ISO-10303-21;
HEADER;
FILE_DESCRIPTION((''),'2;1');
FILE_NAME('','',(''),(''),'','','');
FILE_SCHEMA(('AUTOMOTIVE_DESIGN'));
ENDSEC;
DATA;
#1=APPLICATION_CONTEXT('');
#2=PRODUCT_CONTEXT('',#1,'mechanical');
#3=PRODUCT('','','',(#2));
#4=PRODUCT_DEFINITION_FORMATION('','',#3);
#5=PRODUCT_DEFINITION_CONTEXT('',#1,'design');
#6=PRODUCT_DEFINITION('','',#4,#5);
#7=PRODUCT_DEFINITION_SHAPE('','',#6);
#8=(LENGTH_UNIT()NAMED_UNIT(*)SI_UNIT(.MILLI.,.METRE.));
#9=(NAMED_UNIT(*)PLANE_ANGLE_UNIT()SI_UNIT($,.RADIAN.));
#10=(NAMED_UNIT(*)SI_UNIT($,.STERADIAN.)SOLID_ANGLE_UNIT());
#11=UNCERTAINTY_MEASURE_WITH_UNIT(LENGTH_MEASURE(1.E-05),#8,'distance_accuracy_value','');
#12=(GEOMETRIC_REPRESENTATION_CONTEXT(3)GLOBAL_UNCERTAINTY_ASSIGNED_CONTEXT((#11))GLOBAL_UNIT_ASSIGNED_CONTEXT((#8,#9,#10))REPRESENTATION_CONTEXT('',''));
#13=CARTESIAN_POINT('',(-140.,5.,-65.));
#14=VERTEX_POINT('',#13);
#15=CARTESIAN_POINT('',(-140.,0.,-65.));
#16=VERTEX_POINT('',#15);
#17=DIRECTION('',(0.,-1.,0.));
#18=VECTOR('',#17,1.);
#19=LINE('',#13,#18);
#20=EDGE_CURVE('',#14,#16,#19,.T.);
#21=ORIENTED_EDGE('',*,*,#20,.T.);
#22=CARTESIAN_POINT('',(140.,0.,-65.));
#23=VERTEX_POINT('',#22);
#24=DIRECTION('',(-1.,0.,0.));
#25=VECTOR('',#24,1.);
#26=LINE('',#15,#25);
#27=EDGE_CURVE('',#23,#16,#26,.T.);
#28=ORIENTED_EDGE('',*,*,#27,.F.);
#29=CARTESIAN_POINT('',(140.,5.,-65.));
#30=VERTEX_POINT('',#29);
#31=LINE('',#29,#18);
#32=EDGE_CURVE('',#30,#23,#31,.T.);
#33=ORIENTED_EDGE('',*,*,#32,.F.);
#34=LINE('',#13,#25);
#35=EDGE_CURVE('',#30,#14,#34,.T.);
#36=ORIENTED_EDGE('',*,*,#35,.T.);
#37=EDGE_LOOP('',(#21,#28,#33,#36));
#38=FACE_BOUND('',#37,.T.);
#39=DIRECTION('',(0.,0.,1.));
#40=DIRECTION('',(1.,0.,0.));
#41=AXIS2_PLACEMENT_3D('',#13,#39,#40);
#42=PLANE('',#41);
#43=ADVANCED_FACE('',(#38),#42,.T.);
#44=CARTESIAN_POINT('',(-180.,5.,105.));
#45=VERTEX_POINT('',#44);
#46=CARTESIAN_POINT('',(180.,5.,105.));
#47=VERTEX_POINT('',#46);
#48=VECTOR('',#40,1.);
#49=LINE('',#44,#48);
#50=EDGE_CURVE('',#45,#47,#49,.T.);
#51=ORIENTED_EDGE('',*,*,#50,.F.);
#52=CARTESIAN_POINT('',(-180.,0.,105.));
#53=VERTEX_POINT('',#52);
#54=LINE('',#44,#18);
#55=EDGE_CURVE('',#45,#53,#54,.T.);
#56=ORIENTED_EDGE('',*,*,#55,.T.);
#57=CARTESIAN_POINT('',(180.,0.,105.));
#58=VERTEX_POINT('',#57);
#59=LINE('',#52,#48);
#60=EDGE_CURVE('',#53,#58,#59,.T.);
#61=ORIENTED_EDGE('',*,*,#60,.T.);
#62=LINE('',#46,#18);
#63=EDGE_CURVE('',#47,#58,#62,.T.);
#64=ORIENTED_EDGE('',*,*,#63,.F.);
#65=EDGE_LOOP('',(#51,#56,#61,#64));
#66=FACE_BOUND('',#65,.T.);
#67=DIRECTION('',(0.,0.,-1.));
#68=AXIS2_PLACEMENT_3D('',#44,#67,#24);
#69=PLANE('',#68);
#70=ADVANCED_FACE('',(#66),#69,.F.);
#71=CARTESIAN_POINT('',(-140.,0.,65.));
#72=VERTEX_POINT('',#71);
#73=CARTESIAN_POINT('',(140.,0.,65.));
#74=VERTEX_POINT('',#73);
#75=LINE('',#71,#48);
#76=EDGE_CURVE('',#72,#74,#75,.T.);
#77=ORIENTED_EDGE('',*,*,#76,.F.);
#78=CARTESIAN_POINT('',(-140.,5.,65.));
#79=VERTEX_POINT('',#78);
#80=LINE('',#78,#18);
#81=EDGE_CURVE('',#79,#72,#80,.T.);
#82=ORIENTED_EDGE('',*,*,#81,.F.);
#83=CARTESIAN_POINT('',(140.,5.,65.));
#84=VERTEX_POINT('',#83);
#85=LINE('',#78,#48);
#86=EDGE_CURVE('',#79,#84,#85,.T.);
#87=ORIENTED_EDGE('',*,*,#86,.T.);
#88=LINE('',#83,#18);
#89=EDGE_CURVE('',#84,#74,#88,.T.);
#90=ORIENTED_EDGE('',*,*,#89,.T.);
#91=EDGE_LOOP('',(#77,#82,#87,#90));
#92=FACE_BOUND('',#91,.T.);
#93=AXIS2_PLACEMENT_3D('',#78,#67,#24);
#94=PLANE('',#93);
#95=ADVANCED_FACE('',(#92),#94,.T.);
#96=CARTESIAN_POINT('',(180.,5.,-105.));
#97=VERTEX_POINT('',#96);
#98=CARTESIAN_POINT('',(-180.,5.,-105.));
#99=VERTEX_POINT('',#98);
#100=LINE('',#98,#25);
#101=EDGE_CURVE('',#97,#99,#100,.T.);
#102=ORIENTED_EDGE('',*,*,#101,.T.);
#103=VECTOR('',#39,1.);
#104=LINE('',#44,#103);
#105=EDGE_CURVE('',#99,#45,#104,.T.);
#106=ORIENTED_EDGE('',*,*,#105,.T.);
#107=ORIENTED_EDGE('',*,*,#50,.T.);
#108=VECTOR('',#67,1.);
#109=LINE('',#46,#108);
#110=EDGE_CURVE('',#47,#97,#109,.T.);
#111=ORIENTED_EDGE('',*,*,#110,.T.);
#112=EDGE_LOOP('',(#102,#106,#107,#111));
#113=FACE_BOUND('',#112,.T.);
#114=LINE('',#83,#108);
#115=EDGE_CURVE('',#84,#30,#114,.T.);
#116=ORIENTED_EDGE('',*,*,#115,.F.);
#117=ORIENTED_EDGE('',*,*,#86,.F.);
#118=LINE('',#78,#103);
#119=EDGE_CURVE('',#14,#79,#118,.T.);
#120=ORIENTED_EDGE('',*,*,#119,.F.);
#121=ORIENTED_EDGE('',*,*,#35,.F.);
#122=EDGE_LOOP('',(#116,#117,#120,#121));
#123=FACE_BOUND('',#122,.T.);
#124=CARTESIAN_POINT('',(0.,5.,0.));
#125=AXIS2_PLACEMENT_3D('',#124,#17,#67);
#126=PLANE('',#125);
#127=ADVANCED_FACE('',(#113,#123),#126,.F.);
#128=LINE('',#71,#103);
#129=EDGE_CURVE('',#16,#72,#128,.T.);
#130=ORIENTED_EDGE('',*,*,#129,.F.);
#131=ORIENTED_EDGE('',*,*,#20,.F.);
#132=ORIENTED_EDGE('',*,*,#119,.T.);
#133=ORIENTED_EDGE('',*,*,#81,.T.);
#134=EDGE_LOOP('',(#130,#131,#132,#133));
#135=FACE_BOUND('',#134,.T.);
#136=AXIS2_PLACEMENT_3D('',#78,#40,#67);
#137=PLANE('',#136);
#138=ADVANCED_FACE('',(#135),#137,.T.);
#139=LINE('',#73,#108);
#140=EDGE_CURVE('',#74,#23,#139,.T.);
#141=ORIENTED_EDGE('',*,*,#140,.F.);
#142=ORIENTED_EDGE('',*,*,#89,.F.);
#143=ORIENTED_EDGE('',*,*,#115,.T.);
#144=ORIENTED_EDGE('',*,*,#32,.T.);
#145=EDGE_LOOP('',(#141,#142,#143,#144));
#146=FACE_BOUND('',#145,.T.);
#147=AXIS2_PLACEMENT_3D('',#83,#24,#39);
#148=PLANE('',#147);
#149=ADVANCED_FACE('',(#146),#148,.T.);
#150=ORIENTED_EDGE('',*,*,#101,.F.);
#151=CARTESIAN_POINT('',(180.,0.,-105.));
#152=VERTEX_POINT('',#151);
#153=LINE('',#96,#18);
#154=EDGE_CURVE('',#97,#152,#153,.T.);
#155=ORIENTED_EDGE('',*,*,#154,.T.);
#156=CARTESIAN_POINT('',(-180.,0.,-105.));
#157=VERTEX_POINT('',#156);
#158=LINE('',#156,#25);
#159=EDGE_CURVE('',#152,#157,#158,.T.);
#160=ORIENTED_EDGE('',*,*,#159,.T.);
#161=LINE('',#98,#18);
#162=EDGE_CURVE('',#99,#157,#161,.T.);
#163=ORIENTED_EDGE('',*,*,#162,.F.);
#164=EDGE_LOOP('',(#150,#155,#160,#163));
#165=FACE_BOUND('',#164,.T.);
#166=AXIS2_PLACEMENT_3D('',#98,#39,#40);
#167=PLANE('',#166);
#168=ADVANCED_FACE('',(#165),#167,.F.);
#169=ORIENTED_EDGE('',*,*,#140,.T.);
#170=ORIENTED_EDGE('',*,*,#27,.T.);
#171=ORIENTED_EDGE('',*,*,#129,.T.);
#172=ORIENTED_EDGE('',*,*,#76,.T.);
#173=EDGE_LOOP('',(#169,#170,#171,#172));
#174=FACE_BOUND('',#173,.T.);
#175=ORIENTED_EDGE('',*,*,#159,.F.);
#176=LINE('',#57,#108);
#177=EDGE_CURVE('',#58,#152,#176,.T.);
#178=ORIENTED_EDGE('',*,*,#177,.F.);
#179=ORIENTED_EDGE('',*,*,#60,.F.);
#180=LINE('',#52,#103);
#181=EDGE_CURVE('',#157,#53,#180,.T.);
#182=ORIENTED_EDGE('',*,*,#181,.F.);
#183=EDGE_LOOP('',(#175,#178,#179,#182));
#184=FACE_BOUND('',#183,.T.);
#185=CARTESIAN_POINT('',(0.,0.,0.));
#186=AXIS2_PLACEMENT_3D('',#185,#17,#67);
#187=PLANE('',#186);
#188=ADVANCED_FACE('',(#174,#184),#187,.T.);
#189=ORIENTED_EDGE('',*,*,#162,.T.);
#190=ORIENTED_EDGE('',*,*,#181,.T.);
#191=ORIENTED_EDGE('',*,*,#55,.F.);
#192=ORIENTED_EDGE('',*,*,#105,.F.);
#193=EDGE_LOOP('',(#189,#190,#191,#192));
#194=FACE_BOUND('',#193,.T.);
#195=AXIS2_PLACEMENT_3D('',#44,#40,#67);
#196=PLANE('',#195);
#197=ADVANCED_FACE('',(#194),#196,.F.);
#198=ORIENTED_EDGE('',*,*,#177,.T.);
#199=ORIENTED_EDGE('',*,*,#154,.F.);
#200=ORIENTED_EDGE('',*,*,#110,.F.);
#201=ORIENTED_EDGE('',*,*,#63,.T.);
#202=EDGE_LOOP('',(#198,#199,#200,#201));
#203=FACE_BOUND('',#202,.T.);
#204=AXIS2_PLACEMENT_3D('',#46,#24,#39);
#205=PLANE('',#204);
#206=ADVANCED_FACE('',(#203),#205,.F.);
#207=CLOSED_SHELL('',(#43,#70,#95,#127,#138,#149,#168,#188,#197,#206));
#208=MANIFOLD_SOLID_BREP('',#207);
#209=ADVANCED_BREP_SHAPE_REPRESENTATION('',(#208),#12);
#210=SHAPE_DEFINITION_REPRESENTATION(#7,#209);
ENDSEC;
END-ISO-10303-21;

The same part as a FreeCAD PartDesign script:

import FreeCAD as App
import Part
import Sketcher
from FreeCAD import Vector


def add_polygon(sketch, points):
    """Adds a closed chain of lines whose ends are joined by coincident constraints."""
    first, n = sketch.GeometryCount, len(points)
    for a, b in zip(points, points[1:] + points[:1]):
        sketch.addGeometry(Part.LineSegment(App.Vector(*a, 0), App.Vector(*b, 0)), False)
    for i in range(n):
        sketch.addConstraint(Sketcher.Constraint("Coincident", first + i, 2, first + (i + 1) % n, 1))

doc = App.newDocument("Part")
body = doc.addObject("PartDesign::Body", "Body")

sketch1 = body.newObject("Sketcher::SketchObject", "Sketch")
sketch1.AttachmentSupport = (doc.getObject("XZ_Plane"), [""])
sketch1.MapMode = "FlatFace"
add_polygon(sketch1, [(-180, -105), (-180, 105), (180, 105), (180, -105)])
add_polygon(sketch1, [(140, 65), (-140, 65), (-140, -65), (140, -65)])
sketch1.addConstraint([
    Sketcher.Constraint("Vertical", 0),
    Sketcher.Constraint("Horizontal", 1),
    Sketcher.Constraint("Vertical", 2),
    Sketcher.Constraint("Horizontal", 3),
    Sketcher.Constraint("Horizontal", 4),
    Sketcher.Constraint("Vertical", 5),
    Sketcher.Constraint("Horizontal", 6),
    Sketcher.Constraint("Vertical", 7),
    Sketcher.Constraint("Symmetric", 0, 2, 2, 2, -1, 1),
    Sketcher.Constraint("Symmetric", 4, 2, 6, 2, -1, 1),
    Sketcher.Constraint("DistanceX", 1, 1, 1, 2, 360.0),
    Sketcher.Constraint("DistanceX", 4, 2, 4, 1, 280.0),
    Sketcher.Constraint("DistanceY", 0, 1, 0, 2, 210.0),
    Sketcher.Constraint("DistanceY", 5, 2, 5, 1, 130.0),
])
pad1 = body.newObject("PartDesign::Pad", "Pad")
pad1.Profile = sketch1
pad1.Length = 5
pad1.Reversed = True

doc.recompute()
